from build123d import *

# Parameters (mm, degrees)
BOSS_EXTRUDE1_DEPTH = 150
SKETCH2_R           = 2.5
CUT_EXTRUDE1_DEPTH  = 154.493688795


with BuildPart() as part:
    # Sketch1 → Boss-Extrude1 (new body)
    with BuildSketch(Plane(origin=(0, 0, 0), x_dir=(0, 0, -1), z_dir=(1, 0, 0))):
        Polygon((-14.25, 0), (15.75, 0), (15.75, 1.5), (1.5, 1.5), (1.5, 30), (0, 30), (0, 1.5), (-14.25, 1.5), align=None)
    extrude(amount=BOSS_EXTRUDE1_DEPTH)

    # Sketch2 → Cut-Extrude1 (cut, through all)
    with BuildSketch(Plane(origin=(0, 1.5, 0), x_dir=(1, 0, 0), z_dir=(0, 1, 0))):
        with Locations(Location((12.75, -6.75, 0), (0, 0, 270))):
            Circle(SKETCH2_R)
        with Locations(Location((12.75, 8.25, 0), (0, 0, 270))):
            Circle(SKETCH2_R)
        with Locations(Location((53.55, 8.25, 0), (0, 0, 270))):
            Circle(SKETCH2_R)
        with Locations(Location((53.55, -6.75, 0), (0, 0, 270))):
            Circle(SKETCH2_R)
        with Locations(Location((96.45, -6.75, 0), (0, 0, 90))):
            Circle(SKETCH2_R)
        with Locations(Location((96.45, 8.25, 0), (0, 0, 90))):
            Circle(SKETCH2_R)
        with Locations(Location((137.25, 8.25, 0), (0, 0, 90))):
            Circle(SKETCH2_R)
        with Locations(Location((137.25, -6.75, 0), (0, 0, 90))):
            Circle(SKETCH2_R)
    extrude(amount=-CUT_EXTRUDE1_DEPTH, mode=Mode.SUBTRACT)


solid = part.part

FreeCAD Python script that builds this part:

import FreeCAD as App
import Part
import Sketcher

doc = App.newDocument("Part")
body = doc.addObject("PartDesign::Body", "Body")

# Sketch on YZ plane
sketch1 = body.newObject("Sketcher::SketchObject", "Sketch")
sketch1.AttachmentSupport = (doc.getObject("YZ_Plane"), [""])
sketch1.MapMode = "FlatFace"
sketch1.addGeometry([
    Part.LineSegment(App.Vector(0, 14.2, 0), App.Vector(0, -15.8, 0)),  # 0
    Part.LineSegment(App.Vector(0, -15.8, 0), App.Vector(1.5, -15.8, 0)),  # 1
    Part.LineSegment(App.Vector(1.5, -15.8, 0), App.Vector(1.5, -1.5, 0)),  # 2
    Part.LineSegment(App.Vector(1.5, -1.5, 0), App.Vector(30, -1.5, 0)),  # 3
    Part.LineSegment(App.Vector(30, -1.5, 0), App.Vector(30, 0, 0)),  # 4
    Part.LineSegment(App.Vector(30, 0, 0), App.Vector(1.5, 0, 0)),  # 5
    Part.LineSegment(App.Vector(1.5, 0, 0), App.Vector(1.5, 14.2, 0)),  # 6
    Part.LineSegment(App.Vector(1.5, 14.2, 0), App.Vector(0, 14.2, 0)),  # 7
], False)
sketch1.addConstraint([
    Sketcher.Constraint("Coincident", 0, 2, 1, 1),
    Sketcher.Constraint("Coincident", 1, 2, 2, 1),
    Sketcher.Constraint("Coincident", 2, 2, 3, 1),
    Sketcher.Constraint("Coincident", 3, 2, 4, 1),
    Sketcher.Constraint("Coincident", 4, 2, 5, 1),
    Sketcher.Constraint("Coincident", 5, 2, 6, 1),
    Sketcher.Constraint("Coincident", 6, 2, 7, 1),
    Sketcher.Constraint("Coincident", 7, 2, 0, 1),
    Sketcher.Constraint("Vertical", 0),
    Sketcher.Constraint("Horizontal", 1),
    Sketcher.Constraint("Vertical", 2),
    Sketcher.Constraint("Horizontal", 3),
    Sketcher.Constraint("Vertical", 4),
    Sketcher.Constraint("Horizontal", 5),
    Sketcher.Constraint("Vertical", 6),
    Sketcher.Constraint("Horizontal", 7),
    Sketcher.Constraint("PointOnObject", 0, 2, -2),
    Sketcher.Constraint("PointOnObject", 4, 2, -1),
    Sketcher.Constraint("Vertical", 2, 2, 5, 2),
    Sketcher.Constraint("Equal", 7, 4),
    Sketcher.Constraint("Equal", 2, 6),
    Sketcher.Constraint("DistanceY", 0, 2, 0, 1, 30.0),
    Sketcher.Constraint("DistanceX", 1, 1, 1, 2, 1.5),
    Sketcher.Constraint("DistanceX", 3, 1, 3, 2, 28.5),
])
pad1 = body.newObject("PartDesign::Pad", "Pad")
pad1.Profile = sketch1
pad1.Length = 150

# Sketch on XZ plane
sketch2 = body.newObject("Sketcher::SketchObject", "Sketch001")
sketch2.AttachmentSupport = (doc.getObject("XZ_Plane"), [""])
sketch2.MapMode = "FlatFace"
sketch2.AttachmentOffset = App.Placement(App.Vector(0, 0, -1.5), App.Rotation())
sketch2.addGeometry([
    Part.Circle(App.Vector(12.8, 6.8, 0), App.Vector(0, 0, 1), 2.5),  # 0
    Part.Circle(App.Vector(12.8, -8.2, 0), App.Vector(0, 0, 1), 2.5),  # 1
    Part.Circle(App.Vector(53.5, -8.2, 0), App.Vector(0, 0, 1), 2.5),  # 2
    Part.Circle(App.Vector(53.5, 6.8, 0), App.Vector(0, 0, 1), 2.5),  # 3
    Part.Circle(App.Vector(96.5, 6.8, 0), App.Vector(0, 0, 1), 2.5),  # 4
    Part.Circle(App.Vector(96.5, -8.2, 0), App.Vector(0, 0, 1), 2.5),  # 5
    Part.Circle(App.Vector(137.2, -8.2, 0), App.Vector(0, 0, 1), 2.5),  # 6
    Part.Circle(App.Vector(137.2, 6.8, 0), App.Vector(0, 0, 1), 2.5),  # 7
], False)
sketch2.addConstraint([
    Sketcher.Constraint("Equal", 0, 1),
    Sketcher.Constraint("Equal", 1, 2),
    Sketcher.Constraint("Equal", 2, 3),
    Sketcher.Constraint("Equal", 3, 4),
    Sketcher.Constraint("Equal", 4, 5),
    Sketcher.Constraint("Equal", 5, 6),
    Sketcher.Constraint("Equal", 6, 7),
    Sketcher.Constraint("Horizontal", 1, 3, 2, 3),
    Sketcher.Constraint("Horizontal", 0, 3, 3, 3),
    Sketcher.Constraint("Horizontal", 3, 3, 4, 3),
    Sketcher.Constraint("Horizontal", 2, 3, 5, 3),
    Sketcher.Constraint("Horizontal", 5, 3, 6, 3),
    Sketcher.Constraint("Horizontal", 4, 3, 7, 3),
    Sketcher.Constraint("Vertical", 0, 3, 1, 3),
    Sketcher.Constraint("Vertical", 2, 3, 3, 3),
    Sketcher.Constraint("Vertical", 4, 3, 5, 3),
    Sketcher.Constraint("Vertical", 6, 3, 7, 3),
    Sketcher.Constraint("Diameter", 0, 5.0),
    Sketcher.Constraint("DistanceY", 1, 3, 0, 3, 15.0),
    Sketcher.Constraint("DistanceX", 1, 3, 2, 3, 40.8),
    Sketcher.Constraint("DistanceX", 3, 3, 4, 3, 42.9),
    Sketcher.Constraint("DistanceX", 5, 3, 6, 3, 40.8),
    Sketcher.Constraint("DistanceX", -1, 1, 0, 3, 12.75),
    Sketcher.Constraint("DistanceY", -1, 1, 0, 3, 6.75),
])
pocket1 = body.newObject("PartDesign::Pocket", "Pocket")
pocket1.Profile = sketch2
pocket1.Type = "ThroughAll"
pocket1.Reversed = True

doc.recompute()
